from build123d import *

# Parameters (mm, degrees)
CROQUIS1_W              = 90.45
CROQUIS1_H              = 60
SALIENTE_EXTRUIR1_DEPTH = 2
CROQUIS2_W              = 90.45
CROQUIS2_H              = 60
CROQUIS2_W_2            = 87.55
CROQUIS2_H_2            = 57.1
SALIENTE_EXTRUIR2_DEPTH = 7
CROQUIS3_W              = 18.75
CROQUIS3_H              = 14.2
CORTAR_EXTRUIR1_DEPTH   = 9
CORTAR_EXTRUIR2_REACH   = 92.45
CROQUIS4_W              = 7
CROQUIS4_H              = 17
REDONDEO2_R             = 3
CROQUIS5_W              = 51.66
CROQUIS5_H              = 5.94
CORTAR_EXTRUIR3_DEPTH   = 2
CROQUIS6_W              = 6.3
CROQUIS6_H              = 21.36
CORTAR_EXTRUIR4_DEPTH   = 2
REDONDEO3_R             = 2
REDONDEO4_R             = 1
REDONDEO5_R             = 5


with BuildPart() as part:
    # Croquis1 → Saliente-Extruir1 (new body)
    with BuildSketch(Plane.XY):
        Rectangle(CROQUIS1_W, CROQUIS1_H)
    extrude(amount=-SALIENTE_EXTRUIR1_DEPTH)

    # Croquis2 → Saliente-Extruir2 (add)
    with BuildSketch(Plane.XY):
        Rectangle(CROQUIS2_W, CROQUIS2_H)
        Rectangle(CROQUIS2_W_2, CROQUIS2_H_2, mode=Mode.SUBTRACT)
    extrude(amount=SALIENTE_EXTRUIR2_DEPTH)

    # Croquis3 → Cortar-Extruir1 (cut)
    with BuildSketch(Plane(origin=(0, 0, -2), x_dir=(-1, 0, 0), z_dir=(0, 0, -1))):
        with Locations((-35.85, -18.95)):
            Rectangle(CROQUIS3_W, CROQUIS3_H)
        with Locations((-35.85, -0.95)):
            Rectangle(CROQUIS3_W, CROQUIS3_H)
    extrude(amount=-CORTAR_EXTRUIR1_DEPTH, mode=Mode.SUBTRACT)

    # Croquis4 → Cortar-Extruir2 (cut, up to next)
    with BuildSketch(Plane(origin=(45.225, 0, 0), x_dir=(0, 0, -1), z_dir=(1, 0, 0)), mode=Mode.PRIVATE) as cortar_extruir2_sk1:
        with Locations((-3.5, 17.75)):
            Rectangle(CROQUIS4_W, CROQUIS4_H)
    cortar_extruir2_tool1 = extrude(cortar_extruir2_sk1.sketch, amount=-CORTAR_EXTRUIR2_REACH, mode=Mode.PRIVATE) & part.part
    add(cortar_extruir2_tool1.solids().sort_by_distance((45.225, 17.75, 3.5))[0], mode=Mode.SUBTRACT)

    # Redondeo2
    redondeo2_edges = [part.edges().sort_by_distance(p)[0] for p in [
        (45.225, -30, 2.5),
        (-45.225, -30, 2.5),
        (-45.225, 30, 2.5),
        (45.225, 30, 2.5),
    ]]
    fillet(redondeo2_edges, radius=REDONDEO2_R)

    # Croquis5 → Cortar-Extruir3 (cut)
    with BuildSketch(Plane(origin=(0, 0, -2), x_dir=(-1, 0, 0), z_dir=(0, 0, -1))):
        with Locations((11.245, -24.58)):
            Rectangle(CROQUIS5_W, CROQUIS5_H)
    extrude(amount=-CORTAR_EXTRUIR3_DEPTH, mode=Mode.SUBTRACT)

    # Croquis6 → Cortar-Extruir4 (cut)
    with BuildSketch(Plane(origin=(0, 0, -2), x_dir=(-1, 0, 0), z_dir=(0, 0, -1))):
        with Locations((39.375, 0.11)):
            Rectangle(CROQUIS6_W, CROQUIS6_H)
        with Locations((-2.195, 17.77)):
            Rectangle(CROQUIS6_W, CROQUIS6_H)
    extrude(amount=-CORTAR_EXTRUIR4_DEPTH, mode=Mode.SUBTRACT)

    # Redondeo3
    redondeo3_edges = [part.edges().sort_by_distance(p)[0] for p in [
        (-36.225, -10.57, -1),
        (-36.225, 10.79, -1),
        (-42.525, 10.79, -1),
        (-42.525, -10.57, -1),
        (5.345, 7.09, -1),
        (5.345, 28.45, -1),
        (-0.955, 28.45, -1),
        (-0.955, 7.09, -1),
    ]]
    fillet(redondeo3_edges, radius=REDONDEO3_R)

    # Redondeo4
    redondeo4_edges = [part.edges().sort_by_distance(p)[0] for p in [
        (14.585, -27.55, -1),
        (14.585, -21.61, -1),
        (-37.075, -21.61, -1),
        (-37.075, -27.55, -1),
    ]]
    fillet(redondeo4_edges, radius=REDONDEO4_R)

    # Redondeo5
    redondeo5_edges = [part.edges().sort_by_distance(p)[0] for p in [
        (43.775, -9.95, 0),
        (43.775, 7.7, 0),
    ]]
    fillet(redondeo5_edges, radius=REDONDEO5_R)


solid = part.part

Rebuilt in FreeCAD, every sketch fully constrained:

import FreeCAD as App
import Part
import Sketcher

V = App.Vector
Q = App.Units.Quantity


def edges_at(feature, points):
    """Names of the edges that pass closest to the given points."""
    edges = feature.Shape.Edges
    near = lambda p: min(range(len(edges)), key=lambda i: edges[i].distToShape(Part.Vertex(*p))[0])
    return sorted({f"Edge{near(p) + 1}" for p in points})


def add_polygon(sketch, points):
    """Adds a closed chain of lines whose ends are joined by coincident constraints."""
    first, n = sketch.GeometryCount, len(points)
    for a, b in zip(points, points[1:] + points[:1]):
        sketch.addGeometry(Part.LineSegment(App.Vector(*a, 0), App.Vector(*b, 0)), False)
    for i in range(n):
        sketch.addConstraint(Sketcher.Constraint("Coincident", first + i, 2, first + (i + 1) % n, 1))

doc = App.newDocument("Part")
body = doc.addObject("PartDesign::Body", "Body")

sketch1 = doc.addObject("Sketcher::SketchObject", "Sketch")
body.addObject(sketch1)
sketch1.AttachmentSupport = (doc.XY_Plane, [""])
sketch1.MapMode = "FlatFace"
add_polygon(sketch1, [(-45, 30), (-45, -30), (45, -30), (45, 30)])
sketch1.addConstraint(Sketcher.Constraint("Vertical", 0))
sketch1.addConstraint(Sketcher.Constraint("Horizontal", 1))
sketch1.addConstraint(Sketcher.Constraint("Vertical", 2))
sketch1.addConstraint(Sketcher.Constraint("Horizontal", 3))
sketch1.addConstraint(Sketcher.Constraint("Symmetric", 0, 2, 2, 2, -1, 1))
sketch1.addConstraint(Sketcher.Constraint("DistanceY", 0, 2, 0, 1, Q("60 mm")))
sketch1.addConstraint(Sketcher.Constraint("DistanceX", 1, 1, 1, 2, Q("90.45 mm")))
pad1 = doc.addObject("PartDesign::Pad", "Pad")
body.addObject(pad1)
pad1.Profile = sketch1
pad1.Length = 2
pad1.Reversed = True

sketch2 = doc.addObject("Sketcher::SketchObject", "Sketch001")
body.addObject(sketch2)
sketch2.AttachmentSupport = (doc.XY_Plane, [""])
sketch2.MapMode = "FlatFace"
add_polygon(sketch2, [(-45, 30), (-45, -30), (45, -30), (45, 30)])
add_polygon(sketch2, [(44, -29), (-44, -29), (-44, 29), (44, 29)])
sketch2.addConstraint(Sketcher.Constraint("Vertical", 0))
sketch2.addConstraint(Sketcher.Constraint("Horizontal", 1))
sketch2.addConstraint(Sketcher.Constraint("Vertical", 2))
sketch2.addConstraint(Sketcher.Constraint("Horizontal", 3))
sketch2.addConstraint(Sketcher.Constraint("Horizontal", 4))
sketch2.addConstraint(Sketcher.Constraint("Vertical", 5))
sketch2.addConstraint(Sketcher.Constraint("Horizontal", 6))
sketch2.addConstraint(Sketcher.Constraint("Vertical", 7))
sketch2.addConstraint(Sketcher.Constraint("Symmetric", 0, 2, 2, 2, -1, 1))
sketch2.addConstraint(Sketcher.Constraint("Symmetric", 4, 2, 6, 2, -1, 1))
sketch2.addConstraint(Sketcher.Constraint("DistanceY", 0, 2, 0, 1, Q("60 mm")))
sketch2.addConstraint(Sketcher.Constraint("DistanceY", 5, 1, 5, 2, Q("57.1 mm")))
sketch2.addConstraint(Sketcher.Constraint("DistanceX", 4, 2, 1, 2, Q("89 mm")))
sketch2.addConstraint(Sketcher.Constraint("DistanceX", 1, 1, 1, 2, Q("90.45 mm")))
pad2 = doc.addObject("PartDesign::Pad", "Pad001")
body.addObject(pad2)
pad2.Profile = sketch2
pad2.Length = 7

sketch3 = doc.addObject("Sketcher::SketchObject", "Sketch002")
body.addObject(sketch3)
sketch3.AttachmentSupport = (doc.XY_Plane, [""])
sketch3.MapMode = "FlatFace"
sketch3.AttachmentOffset = App.Placement(V(0, 0, -2), App.Rotation())
add_polygon(sketch3, [(45, -12), (45, -26), (26, -26), (26, -12)])
add_polygon(sketch3, [(45, 6), (45, -8), (26, -8), (26, 6)])
sketch3.addConstraint(Sketcher.Constraint("Vertical", 0))
sketch3.addConstraint(Sketcher.Constraint("Horizontal", 1))
sketch3.addConstraint(Sketcher.Constraint("Vertical", 2))
sketch3.addConstraint(Sketcher.Constraint("Horizontal", 3))
sketch3.addConstraint(Sketcher.Constraint("Vertical", 4))
sketch3.addConstraint(Sketcher.Constraint("Horizontal", 5))
sketch3.addConstraint(Sketcher.Constraint("Vertical", 6))
sketch3.addConstraint(Sketcher.Constraint("Horizontal", 7))
sketch3.addConstraint(Sketcher.Constraint("Vertical", 3, 2, 4, 2))
sketch3.addConstraint(Sketcher.Constraint("Vertical", 2, 2, 5, 2))
sketch3.addConstraint(Sketcher.Constraint("Equal", 2, 4))
sketch3.addConstraint(Sketcher.Constraint("DistanceY", 0, 2, 0, 1, Q("14.2 mm")))
sketch3.addConstraint(Sketcher.Constraint("DistanceY", 0, 2, 4, 2, Q("18 mm")))
sketch3.addConstraint(Sketcher.Constraint("DistanceX", 1, 2, 1, 1, Q("18.75 mm")))
sketch3.addConstraint(Sketcher.Constraint("DistanceY", 0, 2, -1, 1, Q("26.05 mm")))
sketch3.addConstraint(Sketcher.Constraint("DistanceX", -1, 1, 0, 2, Q("45.225 mm")))
pocket1 = doc.addObject("PartDesign::Pocket", "Pocket")
body.addObject(pocket1)
pocket1.Profile = sketch3
pocket1.Length = 9
pocket1.Reversed = True

sketch4 = doc.addObject("Sketcher::SketchObject", "Sketch003")
body.addObject(sketch4)
sketch4.AttachmentSupport = (doc.YZ_Plane, [""])
sketch4.MapMode = "FlatFace"
sketch4.AttachmentOffset = App.Placement(V(0, 0, 45.225), App.Rotation())
add_polygon(sketch4, [(26, 7), (9, 7), (9, 0), (26, 0)])
sketch4.addConstraint(Sketcher.Constraint("Horizontal", 0))
sketch4.addConstraint(Sketcher.Constraint("Vertical", 1))
sketch4.addConstraint(Sketcher.Constraint("Horizontal", 2))
sketch4.addConstraint(Sketcher.Constraint("Vertical", 3))
sketch4.addConstraint(Sketcher.Constraint("PointOnObject", 1, 2, -1))
sketch4.addConstraint(Sketcher.Constraint("DistanceX", 0, 2, 0, 1, Q("17 mm")))
sketch4.addConstraint(Sketcher.Constraint("DistanceY", 1, 2, 1, 1, Q("7 mm")))
sketch4.addConstraint(Sketcher.Constraint("DistanceX", -1, 1, 0, 2, Q("9.25 mm")))
pocket2 = doc.addObject("PartDesign::Pocket", "Pocket001")
body.addObject(pocket2)
pocket2.Profile = sketch4
pocket2.Type = "UpToFirst"
doc.recompute()

fillet = doc.addObject("PartDesign::Fillet", "Fillet")
body.addObject(fillet)
fillet.Base = (pocket2, edges_at(pocket2, [
    (45.225, -30, 2.5),
    (-45.225, -30, 2.5),
    (-45.225, 30, 2.5),
    (45.225, 30, 2.5),
]))
fillet.Radius = 3

sketch5 = doc.addObject("Sketcher::SketchObject", "Sketch004")
body.addObject(sketch5)
sketch5.AttachmentSupport = (doc.XY_Plane, [""])
sketch5.MapMode = "FlatFace"
sketch5.AttachmentOffset = App.Placement(V(0, 0, -2), App.Rotation())
add_polygon(sketch5, [(15, -22), (15, -28), (-37, -28), (-37, -22)])
sketch5.addConstraint(Sketcher.Constraint("Vertical", 0))
sketch5.addConstraint(Sketcher.Constraint("Horizontal", 1))
sketch5.addConstraint(Sketcher.Constraint("Vertical", 2))
sketch5.addConstraint(Sketcher.Constraint("Horizontal", 3))
sketch5.addConstraint(Sketcher.Constraint("DistanceX", 1, 2, 1, 1, Q("51.66 mm")))
sketch5.addConstraint(Sketcher.Constraint("DistanceY", 0, 2, 0, 1, Q("5.94 mm")))
sketch5.addConstraint(Sketcher.Constraint("DistanceY", 0, 2, -1, 1, Q("27.55 mm")))
sketch5.addConstraint(Sketcher.Constraint("DistanceX", -1, 1, 0, 2, Q("14.585 mm")))
pocket3 = doc.addObject("PartDesign::Pocket", "Pocket002")
body.addObject(pocket3)
pocket3.Profile = sketch5
pocket3.Length = 2
pocket3.Reversed = True

sketch6 = doc.addObject("Sketcher::SketchObject", "Sketch005")
body.addObject(sketch6)
sketch6.AttachmentSupport = (doc.XY_Plane, [""])
sketch6.MapMode = "FlatFace"
sketch6.AttachmentOffset = App.Placement(V(0, 0, -2), App.Rotation())
add_polygon(sketch6, [(-36, 11), (-36, -11), (-43, -11), (-43, 11)])
add_polygon(sketch6, [(5, 28), (5, 7), (-1, 7), (-1, 28)])
sketch6.addConstraint(Sketcher.Constraint("Vertical", 0))
sketch6.addConstraint(Sketcher.Constraint("Horizontal", 1))
sketch6.addConstraint(Sketcher.Constraint("Vertical", 2))
sketch6.addConstraint(Sketcher.Constraint("Horizontal", 3))
sketch6.addConstraint(Sketcher.Constraint("Vertical", 4))
sketch6.addConstraint(Sketcher.Constraint("Horizontal", 5))
sketch6.addConstraint(Sketcher.Constraint("Vertical", 6))
sketch6.addConstraint(Sketcher.Constraint("Horizontal", 7))
sketch6.addConstraint(Sketcher.Constraint("Equal", 3, 5))
sketch6.addConstraint(Sketcher.Constraint("Equal", 2, 4))
sketch6.addConstraint(Sketcher.Constraint("DistanceX", 1, 2, 1, 1, Q("6.3 mm")))
sketch6.addConstraint(Sketcher.Constraint("DistanceY", 0, 2, 0, 1, Q("21.36 mm")))
sketch6.addConstraint(Sketcher.Constraint("DistanceY", 4, 2, 3, 2, Q("3.7 mm")))
sketch6.addConstraint(Sketcher.Constraint("DistanceY", 0, 2, -1, 1, Q("10.57 mm")))
sketch6.addConstraint(Sketcher.Constraint("DistanceX", 3, 2, 4, 2, Q("41.57 mm")))
sketch6.addConstraint(Sketcher.Constraint("DistanceX", 0, 2, -1, 1, Q("36.225 mm")))
pocket4 = doc.addObject("PartDesign::Pocket", "Pocket003")
body.addObject(pocket4)
pocket4.Profile = sketch6
pocket4.Length = 2
pocket4.Reversed = True
doc.recompute()

fillet2 = doc.addObject("PartDesign::Fillet", "Fillet001")
body.addObject(fillet2)
fillet2.Base = (pocket4, edges_at(pocket4, [
    (-36.225, -10.57, -1),
    (-36.225, 10.79, -1),
    (-42.525, 10.79, -1),
    (-42.525, -10.57, -1),
    (5.345, 7.09, -1),
    (5.345, 28.45, -1),
    (-0.955, 28.45, -1),
    (-0.955, 7.09, -1),
]))
fillet2.Radius = 2
doc.recompute()

fillet3 = doc.addObject("PartDesign::Fillet", "Fillet002")
body.addObject(fillet3)
fillet3.Base = (fillet2, edges_at(fillet2, [
    (14.585, -27.55, -1),
    (14.585, -21.61, -1),
    (-37.075, -21.61, -1),
    (-37.075, -27.55, -1),
]))
fillet3.Radius = 1
doc.recompute()

fillet4 = doc.addObject("PartDesign::Fillet", "Fillet003")
body.addObject(fillet4)
fillet4.Base = (fillet3, edges_at(fillet3, [(43.775, -9.95, 0), (43.775, 7.7, 0)]))
fillet4.Radius = 5

doc.recompute()
